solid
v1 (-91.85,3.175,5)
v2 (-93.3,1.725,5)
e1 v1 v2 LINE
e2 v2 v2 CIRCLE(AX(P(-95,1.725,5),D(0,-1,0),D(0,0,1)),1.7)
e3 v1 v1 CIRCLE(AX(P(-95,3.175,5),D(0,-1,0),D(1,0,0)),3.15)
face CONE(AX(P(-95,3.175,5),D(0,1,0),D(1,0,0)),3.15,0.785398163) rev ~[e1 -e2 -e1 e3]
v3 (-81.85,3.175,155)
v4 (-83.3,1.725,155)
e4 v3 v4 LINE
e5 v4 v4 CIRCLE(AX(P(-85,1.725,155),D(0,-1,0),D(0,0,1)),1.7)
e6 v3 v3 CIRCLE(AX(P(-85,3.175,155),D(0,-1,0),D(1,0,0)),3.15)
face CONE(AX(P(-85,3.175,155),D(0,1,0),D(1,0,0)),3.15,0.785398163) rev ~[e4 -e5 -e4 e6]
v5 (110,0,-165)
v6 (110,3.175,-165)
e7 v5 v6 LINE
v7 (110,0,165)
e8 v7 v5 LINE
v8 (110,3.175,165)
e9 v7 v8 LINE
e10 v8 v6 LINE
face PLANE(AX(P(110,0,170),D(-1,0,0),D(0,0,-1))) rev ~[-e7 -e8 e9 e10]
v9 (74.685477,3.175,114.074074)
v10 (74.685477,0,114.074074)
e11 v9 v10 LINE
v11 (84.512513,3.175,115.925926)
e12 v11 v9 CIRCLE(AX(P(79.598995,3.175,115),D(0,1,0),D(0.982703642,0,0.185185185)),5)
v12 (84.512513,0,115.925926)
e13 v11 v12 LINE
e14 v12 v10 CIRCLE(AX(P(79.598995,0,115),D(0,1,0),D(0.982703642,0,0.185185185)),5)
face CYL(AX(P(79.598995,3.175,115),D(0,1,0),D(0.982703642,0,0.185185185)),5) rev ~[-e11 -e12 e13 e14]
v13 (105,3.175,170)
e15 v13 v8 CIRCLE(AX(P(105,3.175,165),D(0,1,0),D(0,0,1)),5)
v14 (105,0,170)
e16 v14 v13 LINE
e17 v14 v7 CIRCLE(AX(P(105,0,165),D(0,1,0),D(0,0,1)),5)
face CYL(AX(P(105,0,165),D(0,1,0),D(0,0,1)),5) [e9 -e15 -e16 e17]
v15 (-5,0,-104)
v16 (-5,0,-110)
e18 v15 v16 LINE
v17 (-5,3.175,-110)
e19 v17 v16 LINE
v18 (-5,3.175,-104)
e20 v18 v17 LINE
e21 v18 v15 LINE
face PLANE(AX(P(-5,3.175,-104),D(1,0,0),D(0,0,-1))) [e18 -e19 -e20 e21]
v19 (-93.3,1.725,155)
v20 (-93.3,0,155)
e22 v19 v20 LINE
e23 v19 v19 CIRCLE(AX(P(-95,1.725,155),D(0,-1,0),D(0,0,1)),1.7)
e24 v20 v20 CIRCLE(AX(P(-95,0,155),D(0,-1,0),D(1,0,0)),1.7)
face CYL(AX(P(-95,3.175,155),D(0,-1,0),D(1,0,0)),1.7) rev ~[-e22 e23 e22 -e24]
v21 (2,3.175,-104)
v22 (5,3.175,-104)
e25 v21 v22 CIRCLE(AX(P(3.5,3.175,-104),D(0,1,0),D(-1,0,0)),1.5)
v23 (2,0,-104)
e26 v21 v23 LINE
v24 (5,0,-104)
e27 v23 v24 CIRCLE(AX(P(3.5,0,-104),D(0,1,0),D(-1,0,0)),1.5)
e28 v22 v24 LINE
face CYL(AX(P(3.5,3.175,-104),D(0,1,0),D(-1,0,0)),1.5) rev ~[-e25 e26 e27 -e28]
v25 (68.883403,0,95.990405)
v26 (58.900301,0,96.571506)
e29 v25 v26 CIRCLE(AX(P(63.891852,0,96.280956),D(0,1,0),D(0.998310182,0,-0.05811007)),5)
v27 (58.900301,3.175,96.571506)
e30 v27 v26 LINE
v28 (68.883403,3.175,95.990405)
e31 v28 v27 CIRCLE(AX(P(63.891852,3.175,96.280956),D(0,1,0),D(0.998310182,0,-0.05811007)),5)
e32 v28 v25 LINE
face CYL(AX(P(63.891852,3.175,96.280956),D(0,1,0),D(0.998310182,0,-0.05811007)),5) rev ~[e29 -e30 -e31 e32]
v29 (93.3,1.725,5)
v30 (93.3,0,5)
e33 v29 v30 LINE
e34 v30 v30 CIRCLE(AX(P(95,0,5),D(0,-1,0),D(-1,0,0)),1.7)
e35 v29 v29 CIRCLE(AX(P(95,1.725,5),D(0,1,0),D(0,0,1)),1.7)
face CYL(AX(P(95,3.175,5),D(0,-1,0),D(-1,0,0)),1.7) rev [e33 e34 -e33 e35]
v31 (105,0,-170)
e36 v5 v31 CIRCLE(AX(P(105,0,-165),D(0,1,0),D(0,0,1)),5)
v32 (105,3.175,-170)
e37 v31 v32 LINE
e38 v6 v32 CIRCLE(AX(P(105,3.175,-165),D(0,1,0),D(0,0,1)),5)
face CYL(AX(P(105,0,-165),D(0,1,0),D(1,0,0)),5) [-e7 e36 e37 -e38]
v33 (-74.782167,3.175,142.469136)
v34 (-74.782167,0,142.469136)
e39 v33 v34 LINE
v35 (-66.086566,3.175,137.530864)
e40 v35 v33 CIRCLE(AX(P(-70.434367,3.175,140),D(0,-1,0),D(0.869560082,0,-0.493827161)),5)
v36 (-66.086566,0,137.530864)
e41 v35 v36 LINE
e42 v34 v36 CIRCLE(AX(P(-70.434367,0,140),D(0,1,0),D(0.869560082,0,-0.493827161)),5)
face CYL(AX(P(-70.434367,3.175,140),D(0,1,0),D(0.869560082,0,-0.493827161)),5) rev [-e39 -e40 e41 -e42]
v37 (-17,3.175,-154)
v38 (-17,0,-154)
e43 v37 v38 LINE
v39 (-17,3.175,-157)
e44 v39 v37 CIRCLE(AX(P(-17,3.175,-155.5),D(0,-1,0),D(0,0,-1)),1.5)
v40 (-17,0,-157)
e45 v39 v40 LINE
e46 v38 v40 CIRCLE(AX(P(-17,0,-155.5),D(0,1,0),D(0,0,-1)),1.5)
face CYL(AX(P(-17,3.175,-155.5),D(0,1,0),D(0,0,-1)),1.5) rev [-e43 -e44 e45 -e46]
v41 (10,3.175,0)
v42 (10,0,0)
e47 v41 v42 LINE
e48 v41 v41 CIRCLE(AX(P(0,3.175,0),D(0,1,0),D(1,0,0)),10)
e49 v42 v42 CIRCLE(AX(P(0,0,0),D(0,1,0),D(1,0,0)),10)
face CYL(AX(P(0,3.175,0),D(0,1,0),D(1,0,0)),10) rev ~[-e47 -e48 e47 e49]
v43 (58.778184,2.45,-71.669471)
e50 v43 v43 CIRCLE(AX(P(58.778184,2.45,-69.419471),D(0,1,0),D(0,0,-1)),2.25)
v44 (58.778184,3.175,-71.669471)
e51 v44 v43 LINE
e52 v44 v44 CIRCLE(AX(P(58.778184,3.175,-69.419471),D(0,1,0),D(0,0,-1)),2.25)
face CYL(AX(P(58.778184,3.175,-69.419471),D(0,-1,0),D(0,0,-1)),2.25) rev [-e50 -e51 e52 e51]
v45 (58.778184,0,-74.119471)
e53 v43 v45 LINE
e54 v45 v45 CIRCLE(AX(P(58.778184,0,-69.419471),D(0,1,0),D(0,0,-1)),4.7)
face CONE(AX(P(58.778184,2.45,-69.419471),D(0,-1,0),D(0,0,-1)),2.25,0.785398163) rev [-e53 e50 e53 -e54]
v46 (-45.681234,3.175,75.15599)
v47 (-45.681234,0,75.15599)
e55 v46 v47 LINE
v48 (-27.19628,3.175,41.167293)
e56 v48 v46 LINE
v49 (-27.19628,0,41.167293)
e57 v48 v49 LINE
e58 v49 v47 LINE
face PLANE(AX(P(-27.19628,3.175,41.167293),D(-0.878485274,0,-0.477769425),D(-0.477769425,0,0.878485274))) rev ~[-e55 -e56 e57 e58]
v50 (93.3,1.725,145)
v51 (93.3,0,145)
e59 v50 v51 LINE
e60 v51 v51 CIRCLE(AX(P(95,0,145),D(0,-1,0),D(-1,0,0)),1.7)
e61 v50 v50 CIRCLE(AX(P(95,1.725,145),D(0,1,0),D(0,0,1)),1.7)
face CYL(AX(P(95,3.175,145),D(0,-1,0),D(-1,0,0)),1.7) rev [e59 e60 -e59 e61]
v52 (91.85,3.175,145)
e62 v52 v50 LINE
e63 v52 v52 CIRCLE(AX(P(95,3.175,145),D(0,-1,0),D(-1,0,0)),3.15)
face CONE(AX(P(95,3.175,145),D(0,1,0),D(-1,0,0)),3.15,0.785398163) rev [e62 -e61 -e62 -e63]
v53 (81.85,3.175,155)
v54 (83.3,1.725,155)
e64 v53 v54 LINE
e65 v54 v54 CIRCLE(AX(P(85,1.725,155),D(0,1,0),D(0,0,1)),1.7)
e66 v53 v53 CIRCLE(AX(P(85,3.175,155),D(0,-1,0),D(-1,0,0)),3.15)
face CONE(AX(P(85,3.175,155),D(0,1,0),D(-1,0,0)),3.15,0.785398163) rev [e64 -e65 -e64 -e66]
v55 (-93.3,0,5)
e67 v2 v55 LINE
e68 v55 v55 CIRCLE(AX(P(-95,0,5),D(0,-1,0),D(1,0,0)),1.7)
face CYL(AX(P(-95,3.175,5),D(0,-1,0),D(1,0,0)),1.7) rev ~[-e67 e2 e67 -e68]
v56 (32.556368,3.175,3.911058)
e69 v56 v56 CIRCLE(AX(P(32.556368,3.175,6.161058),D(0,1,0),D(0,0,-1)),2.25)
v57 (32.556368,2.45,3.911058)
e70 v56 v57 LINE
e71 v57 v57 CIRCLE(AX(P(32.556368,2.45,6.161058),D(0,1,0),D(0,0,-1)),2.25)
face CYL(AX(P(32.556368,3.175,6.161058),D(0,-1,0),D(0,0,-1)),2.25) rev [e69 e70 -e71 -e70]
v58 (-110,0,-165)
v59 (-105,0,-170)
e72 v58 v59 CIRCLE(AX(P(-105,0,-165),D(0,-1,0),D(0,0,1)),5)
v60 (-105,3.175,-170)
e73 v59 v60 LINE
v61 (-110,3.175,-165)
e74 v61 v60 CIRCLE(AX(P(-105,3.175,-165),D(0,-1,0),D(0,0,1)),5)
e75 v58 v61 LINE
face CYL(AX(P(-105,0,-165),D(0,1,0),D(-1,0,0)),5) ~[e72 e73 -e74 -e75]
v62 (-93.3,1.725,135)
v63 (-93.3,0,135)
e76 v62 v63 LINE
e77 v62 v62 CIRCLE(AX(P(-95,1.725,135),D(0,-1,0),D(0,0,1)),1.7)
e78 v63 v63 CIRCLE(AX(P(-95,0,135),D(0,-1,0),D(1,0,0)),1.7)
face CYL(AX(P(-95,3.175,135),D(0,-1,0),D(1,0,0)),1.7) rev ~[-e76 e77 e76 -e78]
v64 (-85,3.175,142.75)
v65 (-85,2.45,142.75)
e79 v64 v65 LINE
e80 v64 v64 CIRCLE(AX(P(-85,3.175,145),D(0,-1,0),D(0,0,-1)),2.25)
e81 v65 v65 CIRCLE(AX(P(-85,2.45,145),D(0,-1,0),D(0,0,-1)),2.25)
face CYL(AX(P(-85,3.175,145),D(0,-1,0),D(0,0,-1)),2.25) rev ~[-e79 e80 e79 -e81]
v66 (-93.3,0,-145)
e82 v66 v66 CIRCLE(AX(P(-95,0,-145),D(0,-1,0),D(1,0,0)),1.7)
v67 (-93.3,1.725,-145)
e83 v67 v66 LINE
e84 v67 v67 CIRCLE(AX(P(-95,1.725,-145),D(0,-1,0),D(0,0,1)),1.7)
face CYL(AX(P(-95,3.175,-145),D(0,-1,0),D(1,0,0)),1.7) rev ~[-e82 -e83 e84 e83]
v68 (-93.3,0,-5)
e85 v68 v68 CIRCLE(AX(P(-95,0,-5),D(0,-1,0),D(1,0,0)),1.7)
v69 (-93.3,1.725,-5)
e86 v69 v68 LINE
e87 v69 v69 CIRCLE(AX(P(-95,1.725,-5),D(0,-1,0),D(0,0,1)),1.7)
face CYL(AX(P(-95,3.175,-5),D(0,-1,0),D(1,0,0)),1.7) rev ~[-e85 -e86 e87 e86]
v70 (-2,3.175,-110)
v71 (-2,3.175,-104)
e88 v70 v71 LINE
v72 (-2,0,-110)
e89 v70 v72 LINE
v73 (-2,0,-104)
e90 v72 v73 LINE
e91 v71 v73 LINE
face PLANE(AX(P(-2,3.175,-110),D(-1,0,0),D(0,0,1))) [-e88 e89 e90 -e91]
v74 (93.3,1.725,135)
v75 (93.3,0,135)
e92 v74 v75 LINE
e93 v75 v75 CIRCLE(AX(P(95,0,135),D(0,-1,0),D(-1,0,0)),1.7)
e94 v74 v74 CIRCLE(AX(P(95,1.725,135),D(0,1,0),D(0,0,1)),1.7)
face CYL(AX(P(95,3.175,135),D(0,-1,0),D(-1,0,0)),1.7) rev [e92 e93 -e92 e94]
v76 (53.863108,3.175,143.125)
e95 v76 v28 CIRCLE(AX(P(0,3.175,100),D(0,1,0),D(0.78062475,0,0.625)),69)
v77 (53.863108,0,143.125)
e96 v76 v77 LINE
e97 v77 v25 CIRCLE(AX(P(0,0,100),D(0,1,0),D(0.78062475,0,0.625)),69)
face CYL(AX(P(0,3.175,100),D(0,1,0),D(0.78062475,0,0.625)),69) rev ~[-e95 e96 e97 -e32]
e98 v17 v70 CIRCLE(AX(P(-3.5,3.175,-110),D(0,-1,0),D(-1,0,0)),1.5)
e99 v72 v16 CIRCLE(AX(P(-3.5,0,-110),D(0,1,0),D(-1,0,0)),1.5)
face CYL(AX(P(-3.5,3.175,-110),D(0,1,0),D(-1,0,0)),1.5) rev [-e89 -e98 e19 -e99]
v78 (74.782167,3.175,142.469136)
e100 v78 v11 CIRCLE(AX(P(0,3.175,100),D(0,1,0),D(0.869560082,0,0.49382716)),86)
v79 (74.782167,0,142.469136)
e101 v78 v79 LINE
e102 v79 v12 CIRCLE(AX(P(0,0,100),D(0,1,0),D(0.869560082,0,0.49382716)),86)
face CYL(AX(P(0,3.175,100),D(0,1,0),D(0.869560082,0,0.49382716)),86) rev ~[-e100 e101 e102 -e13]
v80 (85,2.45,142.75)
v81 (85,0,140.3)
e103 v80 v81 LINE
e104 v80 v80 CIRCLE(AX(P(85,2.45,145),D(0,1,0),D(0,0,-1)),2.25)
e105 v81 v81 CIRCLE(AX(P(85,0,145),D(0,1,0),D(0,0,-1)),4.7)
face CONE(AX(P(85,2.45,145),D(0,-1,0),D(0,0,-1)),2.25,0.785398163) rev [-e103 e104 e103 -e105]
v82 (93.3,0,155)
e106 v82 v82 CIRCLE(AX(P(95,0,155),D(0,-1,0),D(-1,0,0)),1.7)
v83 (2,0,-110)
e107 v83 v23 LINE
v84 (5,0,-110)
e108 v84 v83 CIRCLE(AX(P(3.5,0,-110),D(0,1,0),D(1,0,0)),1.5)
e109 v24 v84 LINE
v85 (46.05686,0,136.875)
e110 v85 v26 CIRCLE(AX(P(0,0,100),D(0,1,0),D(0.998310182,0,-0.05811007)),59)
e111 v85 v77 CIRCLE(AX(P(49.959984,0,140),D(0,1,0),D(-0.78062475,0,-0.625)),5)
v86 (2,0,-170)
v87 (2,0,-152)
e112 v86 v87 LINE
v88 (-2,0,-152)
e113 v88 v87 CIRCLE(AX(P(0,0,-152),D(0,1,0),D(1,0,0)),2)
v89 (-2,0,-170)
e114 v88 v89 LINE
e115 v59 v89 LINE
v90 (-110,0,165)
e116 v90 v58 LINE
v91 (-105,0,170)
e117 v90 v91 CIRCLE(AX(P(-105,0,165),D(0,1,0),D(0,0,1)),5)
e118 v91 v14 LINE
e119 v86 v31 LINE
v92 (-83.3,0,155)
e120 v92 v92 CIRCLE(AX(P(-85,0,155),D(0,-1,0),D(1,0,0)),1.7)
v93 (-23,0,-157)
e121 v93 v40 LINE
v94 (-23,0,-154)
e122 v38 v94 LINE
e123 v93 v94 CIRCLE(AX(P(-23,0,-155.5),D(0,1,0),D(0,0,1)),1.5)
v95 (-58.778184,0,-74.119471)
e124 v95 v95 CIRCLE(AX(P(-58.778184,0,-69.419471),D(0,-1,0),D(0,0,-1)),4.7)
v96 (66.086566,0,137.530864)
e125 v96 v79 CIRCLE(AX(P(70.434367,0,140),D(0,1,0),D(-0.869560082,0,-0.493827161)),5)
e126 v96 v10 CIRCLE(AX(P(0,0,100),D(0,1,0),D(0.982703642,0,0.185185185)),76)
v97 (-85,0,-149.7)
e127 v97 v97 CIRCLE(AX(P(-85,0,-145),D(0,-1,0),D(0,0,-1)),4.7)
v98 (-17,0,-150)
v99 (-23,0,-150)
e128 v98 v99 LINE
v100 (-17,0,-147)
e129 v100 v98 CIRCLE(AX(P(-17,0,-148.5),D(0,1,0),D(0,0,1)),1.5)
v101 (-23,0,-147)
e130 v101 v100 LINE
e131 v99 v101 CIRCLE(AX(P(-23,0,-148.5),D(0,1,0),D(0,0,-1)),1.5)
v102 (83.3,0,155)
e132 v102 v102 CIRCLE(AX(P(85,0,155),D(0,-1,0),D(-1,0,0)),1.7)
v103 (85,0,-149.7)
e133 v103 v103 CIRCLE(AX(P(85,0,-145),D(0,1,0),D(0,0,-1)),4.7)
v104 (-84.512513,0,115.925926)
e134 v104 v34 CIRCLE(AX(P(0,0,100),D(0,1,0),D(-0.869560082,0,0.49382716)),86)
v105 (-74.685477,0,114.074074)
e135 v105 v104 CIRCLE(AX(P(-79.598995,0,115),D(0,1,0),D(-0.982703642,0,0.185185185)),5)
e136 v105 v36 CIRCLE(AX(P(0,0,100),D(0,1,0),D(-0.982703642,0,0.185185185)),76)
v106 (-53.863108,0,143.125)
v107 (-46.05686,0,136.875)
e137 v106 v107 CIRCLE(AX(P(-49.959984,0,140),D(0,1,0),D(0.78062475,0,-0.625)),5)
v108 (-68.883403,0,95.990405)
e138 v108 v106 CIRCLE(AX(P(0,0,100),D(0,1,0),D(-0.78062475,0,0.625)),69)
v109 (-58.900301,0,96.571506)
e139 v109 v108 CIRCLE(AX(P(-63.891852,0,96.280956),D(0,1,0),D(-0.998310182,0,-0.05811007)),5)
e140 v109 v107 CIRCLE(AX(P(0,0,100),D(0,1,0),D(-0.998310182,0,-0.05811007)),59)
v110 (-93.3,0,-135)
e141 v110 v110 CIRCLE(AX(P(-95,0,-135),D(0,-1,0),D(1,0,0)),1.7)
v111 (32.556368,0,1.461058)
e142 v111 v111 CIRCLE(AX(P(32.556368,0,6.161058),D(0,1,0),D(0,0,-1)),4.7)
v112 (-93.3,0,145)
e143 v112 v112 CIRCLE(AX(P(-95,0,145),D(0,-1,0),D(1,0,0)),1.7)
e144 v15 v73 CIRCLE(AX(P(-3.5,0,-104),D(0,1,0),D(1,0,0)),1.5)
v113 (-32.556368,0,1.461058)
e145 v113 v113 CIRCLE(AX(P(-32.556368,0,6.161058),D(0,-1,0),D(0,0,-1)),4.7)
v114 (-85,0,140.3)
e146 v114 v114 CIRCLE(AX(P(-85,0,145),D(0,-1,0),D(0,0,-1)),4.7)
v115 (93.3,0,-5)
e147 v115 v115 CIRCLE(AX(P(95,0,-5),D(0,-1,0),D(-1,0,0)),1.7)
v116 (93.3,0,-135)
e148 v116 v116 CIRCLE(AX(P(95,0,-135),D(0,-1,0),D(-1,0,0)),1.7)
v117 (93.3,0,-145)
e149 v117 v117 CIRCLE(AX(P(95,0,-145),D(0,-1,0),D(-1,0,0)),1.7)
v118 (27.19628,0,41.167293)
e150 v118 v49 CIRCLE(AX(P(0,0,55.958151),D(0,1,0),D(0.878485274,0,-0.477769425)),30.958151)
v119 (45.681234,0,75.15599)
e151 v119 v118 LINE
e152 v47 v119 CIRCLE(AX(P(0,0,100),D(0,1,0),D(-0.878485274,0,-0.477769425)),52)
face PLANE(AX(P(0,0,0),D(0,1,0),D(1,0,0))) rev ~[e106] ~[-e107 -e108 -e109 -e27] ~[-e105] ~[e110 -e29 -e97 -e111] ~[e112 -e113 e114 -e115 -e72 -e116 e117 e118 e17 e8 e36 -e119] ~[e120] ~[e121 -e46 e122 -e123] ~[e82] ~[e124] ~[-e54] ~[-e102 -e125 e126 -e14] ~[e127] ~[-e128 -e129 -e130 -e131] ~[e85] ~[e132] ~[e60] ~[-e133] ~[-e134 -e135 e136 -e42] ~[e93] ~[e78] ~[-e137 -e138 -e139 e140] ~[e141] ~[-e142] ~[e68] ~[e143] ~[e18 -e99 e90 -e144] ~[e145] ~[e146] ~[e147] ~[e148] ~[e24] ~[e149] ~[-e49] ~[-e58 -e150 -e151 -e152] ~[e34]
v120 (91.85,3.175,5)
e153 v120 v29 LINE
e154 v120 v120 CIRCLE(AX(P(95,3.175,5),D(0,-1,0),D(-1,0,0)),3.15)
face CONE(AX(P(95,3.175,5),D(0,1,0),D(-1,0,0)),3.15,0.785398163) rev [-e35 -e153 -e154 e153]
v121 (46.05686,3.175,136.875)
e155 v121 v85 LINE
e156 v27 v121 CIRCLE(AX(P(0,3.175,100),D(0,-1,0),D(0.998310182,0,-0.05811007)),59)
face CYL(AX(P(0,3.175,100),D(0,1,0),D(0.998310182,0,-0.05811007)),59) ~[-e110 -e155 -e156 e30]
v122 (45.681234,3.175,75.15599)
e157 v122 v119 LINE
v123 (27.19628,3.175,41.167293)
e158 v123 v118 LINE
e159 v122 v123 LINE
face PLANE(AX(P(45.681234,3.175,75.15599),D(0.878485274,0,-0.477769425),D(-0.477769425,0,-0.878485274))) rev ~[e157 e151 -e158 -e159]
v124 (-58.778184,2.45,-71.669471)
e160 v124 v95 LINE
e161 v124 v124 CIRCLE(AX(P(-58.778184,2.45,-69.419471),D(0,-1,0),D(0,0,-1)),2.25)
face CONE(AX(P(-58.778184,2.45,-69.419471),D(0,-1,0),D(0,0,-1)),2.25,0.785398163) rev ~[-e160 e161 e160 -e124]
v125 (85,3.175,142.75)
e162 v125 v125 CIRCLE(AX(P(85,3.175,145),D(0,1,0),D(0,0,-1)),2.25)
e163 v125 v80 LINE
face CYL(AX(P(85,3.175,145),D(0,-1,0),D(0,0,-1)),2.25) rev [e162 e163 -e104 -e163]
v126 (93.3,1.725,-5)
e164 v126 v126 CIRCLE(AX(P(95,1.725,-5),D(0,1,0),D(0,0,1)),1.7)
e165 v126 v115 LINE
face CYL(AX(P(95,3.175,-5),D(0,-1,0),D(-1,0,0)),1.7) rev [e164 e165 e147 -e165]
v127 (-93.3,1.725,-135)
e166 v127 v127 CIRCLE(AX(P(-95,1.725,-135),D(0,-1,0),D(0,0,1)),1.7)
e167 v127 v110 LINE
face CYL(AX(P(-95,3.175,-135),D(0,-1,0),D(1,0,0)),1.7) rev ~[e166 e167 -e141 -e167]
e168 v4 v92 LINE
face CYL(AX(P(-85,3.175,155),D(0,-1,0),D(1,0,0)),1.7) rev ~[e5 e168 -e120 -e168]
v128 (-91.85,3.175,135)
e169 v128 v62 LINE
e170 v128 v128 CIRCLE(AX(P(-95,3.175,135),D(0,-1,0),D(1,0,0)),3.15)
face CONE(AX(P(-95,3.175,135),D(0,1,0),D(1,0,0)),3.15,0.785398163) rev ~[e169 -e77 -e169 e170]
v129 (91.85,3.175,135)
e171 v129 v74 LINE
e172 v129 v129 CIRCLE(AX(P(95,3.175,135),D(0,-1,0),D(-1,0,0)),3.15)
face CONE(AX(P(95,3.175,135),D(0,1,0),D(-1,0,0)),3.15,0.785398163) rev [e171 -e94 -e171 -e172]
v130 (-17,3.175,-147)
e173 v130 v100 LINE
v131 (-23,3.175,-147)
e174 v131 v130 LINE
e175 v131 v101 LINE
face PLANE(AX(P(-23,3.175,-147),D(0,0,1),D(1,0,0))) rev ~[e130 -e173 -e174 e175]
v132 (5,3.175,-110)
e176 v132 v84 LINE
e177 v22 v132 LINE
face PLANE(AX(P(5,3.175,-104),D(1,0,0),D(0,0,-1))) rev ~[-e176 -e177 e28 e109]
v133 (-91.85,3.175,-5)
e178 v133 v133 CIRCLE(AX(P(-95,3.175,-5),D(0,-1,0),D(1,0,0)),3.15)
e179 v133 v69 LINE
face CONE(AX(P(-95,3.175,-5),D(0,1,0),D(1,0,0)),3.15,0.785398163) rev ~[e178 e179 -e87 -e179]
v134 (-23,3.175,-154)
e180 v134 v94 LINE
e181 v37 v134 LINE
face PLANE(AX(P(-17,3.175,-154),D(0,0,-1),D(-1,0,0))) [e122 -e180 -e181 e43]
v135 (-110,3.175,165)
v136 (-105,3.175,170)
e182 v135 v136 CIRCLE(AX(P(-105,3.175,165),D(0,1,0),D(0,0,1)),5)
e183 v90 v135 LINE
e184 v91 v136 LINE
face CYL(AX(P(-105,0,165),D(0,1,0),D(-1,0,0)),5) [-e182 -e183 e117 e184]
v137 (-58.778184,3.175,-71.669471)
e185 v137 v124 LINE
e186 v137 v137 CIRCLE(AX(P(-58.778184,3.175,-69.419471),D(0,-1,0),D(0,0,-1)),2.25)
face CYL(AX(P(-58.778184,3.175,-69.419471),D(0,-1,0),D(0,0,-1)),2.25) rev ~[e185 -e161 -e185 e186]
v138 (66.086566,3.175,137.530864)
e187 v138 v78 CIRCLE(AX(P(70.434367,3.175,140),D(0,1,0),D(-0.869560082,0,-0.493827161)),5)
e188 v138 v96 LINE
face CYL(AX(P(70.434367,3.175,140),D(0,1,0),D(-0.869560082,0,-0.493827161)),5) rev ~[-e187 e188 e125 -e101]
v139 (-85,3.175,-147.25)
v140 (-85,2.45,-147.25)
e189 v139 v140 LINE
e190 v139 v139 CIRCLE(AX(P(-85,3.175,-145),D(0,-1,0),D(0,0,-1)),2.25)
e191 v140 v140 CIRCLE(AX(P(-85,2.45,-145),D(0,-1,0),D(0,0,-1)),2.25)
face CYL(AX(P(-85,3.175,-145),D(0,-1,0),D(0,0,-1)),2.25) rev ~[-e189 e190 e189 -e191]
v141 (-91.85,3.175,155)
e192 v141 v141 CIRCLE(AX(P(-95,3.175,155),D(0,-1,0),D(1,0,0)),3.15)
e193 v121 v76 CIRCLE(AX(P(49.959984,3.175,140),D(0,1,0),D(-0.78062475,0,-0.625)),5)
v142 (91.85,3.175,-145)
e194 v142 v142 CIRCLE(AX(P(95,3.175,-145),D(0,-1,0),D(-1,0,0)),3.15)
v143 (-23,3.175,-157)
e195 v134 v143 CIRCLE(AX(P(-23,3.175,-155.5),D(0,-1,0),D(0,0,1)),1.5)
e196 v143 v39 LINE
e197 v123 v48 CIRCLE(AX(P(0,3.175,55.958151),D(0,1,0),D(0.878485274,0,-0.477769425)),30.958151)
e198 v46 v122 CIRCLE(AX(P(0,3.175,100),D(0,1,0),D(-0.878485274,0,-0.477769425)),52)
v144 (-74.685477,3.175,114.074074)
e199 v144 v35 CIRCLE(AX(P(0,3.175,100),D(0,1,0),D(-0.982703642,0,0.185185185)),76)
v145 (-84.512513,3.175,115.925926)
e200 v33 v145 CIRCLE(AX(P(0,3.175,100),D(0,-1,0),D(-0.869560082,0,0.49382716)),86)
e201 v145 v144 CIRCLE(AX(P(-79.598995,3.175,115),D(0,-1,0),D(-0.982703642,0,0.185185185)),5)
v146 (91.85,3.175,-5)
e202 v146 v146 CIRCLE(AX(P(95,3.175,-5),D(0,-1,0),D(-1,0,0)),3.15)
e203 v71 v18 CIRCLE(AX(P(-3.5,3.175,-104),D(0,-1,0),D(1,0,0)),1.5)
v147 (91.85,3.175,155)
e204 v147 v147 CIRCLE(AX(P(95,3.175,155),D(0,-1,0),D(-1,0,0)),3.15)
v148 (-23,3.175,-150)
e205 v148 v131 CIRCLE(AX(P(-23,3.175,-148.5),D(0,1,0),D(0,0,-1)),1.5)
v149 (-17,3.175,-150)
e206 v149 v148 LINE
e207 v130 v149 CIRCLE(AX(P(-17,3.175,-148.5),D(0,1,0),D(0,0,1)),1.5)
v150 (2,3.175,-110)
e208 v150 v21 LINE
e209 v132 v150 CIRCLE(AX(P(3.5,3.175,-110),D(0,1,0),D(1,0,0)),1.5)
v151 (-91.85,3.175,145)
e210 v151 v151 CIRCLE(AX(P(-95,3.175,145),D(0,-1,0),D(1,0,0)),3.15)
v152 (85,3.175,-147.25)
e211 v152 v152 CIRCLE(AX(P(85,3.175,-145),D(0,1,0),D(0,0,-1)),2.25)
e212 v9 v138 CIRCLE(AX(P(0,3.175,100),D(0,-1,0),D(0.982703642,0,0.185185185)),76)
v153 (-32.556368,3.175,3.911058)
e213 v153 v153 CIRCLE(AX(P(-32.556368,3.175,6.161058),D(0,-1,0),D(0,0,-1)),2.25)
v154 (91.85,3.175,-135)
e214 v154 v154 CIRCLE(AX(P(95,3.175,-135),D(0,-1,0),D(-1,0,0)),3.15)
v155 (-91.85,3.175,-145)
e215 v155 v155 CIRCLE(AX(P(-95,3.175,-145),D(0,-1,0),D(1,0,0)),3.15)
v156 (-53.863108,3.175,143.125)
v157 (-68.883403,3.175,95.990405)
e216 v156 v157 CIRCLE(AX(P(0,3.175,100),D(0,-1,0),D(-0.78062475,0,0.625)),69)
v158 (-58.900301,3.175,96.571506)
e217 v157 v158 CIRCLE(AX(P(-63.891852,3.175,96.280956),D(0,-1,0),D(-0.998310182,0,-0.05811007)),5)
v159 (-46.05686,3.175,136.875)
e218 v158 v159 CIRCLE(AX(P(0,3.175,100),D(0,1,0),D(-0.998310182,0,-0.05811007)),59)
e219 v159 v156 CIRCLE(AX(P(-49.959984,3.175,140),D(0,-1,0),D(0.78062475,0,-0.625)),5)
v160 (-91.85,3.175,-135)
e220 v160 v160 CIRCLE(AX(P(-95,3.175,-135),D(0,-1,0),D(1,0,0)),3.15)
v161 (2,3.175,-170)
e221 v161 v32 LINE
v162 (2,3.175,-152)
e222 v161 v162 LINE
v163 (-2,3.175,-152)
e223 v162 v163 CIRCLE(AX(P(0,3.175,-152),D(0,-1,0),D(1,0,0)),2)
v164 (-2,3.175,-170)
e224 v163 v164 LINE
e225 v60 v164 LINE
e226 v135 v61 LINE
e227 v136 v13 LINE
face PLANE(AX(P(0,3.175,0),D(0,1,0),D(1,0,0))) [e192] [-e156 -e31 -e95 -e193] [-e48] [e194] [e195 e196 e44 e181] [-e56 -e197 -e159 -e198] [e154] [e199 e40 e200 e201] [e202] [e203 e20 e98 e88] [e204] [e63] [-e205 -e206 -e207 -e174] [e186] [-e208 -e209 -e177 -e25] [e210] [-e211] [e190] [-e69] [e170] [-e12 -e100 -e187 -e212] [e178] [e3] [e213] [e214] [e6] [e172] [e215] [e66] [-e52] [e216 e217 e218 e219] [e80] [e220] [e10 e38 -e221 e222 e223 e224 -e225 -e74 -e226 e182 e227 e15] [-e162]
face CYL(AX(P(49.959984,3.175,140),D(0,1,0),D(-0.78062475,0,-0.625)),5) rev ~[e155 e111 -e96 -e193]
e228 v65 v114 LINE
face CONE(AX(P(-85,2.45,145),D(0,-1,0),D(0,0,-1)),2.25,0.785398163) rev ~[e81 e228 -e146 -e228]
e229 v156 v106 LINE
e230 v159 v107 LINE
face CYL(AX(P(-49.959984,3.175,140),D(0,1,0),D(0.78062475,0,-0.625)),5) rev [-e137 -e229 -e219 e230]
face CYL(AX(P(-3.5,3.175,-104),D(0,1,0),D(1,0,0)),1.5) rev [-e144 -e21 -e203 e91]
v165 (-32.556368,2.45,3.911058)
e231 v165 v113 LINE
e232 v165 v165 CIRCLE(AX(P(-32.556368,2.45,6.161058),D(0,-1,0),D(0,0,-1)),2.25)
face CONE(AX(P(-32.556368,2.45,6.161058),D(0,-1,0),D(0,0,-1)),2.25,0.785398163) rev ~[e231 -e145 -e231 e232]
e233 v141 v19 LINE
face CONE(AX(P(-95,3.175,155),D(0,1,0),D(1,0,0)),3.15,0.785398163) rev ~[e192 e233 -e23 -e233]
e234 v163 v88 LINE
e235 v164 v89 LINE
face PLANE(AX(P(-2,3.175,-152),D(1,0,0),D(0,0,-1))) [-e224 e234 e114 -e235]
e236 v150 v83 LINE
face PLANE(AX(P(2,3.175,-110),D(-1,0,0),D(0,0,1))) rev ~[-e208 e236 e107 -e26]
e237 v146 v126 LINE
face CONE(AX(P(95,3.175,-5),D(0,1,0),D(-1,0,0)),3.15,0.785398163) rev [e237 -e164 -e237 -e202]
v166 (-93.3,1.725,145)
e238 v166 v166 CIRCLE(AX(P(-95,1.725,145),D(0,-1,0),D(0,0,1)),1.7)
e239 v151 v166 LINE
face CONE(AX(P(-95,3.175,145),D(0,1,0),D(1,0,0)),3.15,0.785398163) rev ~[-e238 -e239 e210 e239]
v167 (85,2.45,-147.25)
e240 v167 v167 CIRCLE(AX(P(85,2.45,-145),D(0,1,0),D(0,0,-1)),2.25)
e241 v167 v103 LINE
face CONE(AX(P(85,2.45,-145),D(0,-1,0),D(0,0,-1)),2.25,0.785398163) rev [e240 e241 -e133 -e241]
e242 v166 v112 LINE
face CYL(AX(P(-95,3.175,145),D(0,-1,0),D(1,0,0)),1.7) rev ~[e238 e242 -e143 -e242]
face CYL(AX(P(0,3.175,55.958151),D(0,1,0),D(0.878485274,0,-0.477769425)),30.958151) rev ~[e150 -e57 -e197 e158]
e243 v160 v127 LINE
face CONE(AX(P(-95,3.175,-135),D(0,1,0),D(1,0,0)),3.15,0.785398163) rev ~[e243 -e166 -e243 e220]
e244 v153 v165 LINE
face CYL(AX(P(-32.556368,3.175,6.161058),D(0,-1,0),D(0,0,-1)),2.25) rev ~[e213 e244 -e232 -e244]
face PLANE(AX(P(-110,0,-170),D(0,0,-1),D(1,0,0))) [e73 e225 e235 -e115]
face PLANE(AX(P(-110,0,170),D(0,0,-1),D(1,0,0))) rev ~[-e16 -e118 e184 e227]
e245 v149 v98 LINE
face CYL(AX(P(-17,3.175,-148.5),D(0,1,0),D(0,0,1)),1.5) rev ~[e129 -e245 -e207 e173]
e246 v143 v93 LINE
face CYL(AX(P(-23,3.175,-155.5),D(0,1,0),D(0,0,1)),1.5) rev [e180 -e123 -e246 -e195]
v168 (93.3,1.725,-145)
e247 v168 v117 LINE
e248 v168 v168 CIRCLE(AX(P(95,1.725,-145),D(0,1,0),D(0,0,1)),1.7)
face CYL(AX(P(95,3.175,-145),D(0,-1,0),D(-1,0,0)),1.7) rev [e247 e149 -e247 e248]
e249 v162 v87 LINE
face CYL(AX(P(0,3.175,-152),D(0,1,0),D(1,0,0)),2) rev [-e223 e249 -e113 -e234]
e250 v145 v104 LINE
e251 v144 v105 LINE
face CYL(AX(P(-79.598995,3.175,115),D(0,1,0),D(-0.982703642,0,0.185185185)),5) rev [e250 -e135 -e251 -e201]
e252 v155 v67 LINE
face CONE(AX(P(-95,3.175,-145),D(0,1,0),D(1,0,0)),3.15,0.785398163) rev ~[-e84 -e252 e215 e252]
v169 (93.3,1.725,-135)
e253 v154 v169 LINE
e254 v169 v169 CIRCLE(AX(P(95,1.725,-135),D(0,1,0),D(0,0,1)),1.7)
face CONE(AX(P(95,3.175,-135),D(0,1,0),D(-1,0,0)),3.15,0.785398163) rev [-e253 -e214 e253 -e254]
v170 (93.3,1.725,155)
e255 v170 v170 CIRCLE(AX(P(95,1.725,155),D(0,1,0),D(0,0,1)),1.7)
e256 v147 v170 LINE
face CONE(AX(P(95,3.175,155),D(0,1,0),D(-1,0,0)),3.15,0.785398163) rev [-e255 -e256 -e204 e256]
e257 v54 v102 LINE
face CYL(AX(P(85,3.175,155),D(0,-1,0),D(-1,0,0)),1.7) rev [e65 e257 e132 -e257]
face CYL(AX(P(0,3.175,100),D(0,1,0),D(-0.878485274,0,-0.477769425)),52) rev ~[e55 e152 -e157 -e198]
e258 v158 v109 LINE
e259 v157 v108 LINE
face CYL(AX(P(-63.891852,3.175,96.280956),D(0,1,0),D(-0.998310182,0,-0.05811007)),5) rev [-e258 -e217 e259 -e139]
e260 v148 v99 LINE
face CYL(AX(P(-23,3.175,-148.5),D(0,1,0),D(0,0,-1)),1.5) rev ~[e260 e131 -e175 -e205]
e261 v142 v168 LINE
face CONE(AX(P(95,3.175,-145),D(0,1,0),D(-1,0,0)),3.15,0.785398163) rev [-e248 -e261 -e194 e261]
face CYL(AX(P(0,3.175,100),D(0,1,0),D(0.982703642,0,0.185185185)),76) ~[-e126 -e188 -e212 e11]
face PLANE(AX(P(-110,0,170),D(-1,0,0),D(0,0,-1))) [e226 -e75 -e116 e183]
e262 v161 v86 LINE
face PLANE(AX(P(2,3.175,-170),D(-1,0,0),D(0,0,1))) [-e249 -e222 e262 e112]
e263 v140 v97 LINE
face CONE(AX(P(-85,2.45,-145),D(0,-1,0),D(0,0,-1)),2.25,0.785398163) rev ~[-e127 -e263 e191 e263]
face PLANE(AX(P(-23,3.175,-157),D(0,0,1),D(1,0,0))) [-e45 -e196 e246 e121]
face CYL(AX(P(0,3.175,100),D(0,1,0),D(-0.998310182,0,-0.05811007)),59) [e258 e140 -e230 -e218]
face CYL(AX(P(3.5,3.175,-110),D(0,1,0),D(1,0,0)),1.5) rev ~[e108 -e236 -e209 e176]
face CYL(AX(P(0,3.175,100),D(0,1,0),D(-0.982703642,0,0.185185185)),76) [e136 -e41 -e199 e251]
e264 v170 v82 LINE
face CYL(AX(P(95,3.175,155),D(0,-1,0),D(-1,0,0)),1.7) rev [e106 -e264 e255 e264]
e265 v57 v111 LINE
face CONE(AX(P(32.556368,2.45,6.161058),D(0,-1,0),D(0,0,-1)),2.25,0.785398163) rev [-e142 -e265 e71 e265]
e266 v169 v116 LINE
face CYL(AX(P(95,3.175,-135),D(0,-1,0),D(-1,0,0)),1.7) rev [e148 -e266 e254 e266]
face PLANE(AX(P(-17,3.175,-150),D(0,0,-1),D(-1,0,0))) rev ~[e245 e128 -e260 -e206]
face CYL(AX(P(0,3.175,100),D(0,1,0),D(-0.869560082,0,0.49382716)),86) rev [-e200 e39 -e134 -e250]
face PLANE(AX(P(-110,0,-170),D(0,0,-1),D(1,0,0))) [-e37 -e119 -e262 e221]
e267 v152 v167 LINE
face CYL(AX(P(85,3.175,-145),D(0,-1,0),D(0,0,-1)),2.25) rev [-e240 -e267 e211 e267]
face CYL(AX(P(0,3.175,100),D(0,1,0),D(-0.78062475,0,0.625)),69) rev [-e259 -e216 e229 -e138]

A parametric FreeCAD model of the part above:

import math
import FreeCAD as App
import Part
import Sketcher
Q = App.Units.Quantity


def edges_at(feature, points):
    """Names of the edges that pass closest to the given points."""
    edges = feature.Shape.Edges
    near = lambda p: min(range(len(edges)), key=lambda i: edges[i].distToShape(Part.Vertex(*p))[0])
    return sorted({f"Edge{near(p) + 1}" for p in points})


def add_polygon(sketch, points):
    """Adds a closed chain of lines whose ends are joined by coincident constraints."""
    first, n = sketch.GeometryCount, len(points)
    for a, b in zip(points, points[1:] + points[:1]):
        sketch.addGeometry(Part.LineSegment(App.Vector(*a, 0), App.Vector(*b, 0)), False)
    for i in range(n):
        sketch.addConstraint(Sketcher.Constraint("Coincident", first + i, 2, first + (i + 1) % n, 1))

doc = App.newDocument("Part")
body = doc.addObject("PartDesign::Body", "Body")

# Sketch on XZ plane
sketch1 = doc.addObject("Sketcher::SketchObject", "Sketch")
body.addObject(sketch1)
sketch1.AttachmentSupport = (doc.XZ_Plane, [""])
sketch1.MapMode = "FlatFace"
add_polygon(sketch1, [(-110, -170), (-110, 170), (110, 170), (110, -170)])  # lines 0-3
sketch1.addConstraint(Sketcher.Constraint("Vertical", 0))
sketch1.addConstraint(Sketcher.Constraint("Horizontal", 1))
sketch1.addConstraint(Sketcher.Constraint("Vertical", 2))
sketch1.addConstraint(Sketcher.Constraint("Horizontal", 3))
sketch1.addConstraint(Sketcher.Constraint("Symmetric", 0, 2, 2, 2, -1, 1))
sketch1.addConstraint(Sketcher.Constraint("DistanceX", 1, 1, 1, 2, 220.0))
sketch1.addConstraint(Sketcher.Constraint("DistanceY", 0, 1, 0, 2, 340.0))
pad1 = doc.addObject("PartDesign::Pad", "Pad")
body.addObject(pad1)
pad1.Profile = sketch1
pad1.Length = 3.175
pad1.Reversed = True
doc.recompute()

fillet = doc.addObject("PartDesign::Fillet", "Fillet")
body.addObject(fillet)
fillet.Base = (pad1, edges_at(pad1, [
    (-110, 1.587, -170),
    (110, 1.587, -170),
    (110, 1.587, 170),
    (-110, 1.587, 170),
]))
fillet.Radius = 5

# Sketch on XZ plane
sketch2 = doc.addObject("Sketcher::SketchObject", "Sketch001")
body.addObject(sketch2)
sketch2.AttachmentSupport = (doc.XZ_Plane, [""])
sketch2.MapMode = "FlatFace"
sketch2.AttachmentOffset = App.Placement(App.Vector(0, 0, -3.175), App.Rotation())
sketch2.addGeometry(Part.Circle(App.Vector(0, 0, 0), App.Vector(0, 0, 1), 10), False)
sketch2.addGeometry(Part.LineSegment(App.Vector(-27.2, 41.2, 0), App.Vector(-45.7, 75.2, 0)), False)
sketch2.addGeometry(Part.ArcOfCircle(Part.Circle(App.Vector(0, 100, 0), App.Vector(0, 0, 1), 52), math.radians(-29), math.radians(209)), False)
sketch2.addGeometry(Part.LineSegment(App.Vector(45.7, 75.2, 0), App.Vector(27.2, 41.2, 0)), False)
sketch2.addGeometry(Part.ArcOfCircle(Part.Circle(App.Vector(0, 56, 0), App.Vector(0, 0, 1), 31), math.radians(-151), math.radians(-29)), False)
sketch2.addGeometry(Part.LineSegment(App.Vector(2, -152, 0), App.Vector(2, -170, 0)), False)
sketch2.addGeometry(Part.ArcOfCircle(Part.Circle(App.Vector(0, -170, 0), App.Vector(0, 0, 1), 2), math.radians(180), math.radians(360)), False)
sketch2.addGeometry(Part.LineSegment(App.Vector(-2, -170, 0), App.Vector(-2, -152, 0)), False)
sketch2.addGeometry(Part.ArcOfCircle(Part.Circle(App.Vector(0, -152, 0), App.Vector(0, 0, 1), 2), math.radians(0), math.radians(180)), False)
sketch2.addGeometry(Part.LineSegment(App.Vector(-2, -104, 0), App.Vector(-2, -110, 0)), False)
sketch2.addGeometry(Part.ArcOfCircle(Part.Circle(App.Vector(-3.5, -110, 0), App.Vector(0, 0, 1), 1.5), math.radians(180), math.radians(360)), False)
sketch2.addGeometry(Part.LineSegment(App.Vector(-5, -110, 0), App.Vector(-5, -104, 0)), False)
sketch2.addGeometry(Part.ArcOfCircle(Part.Circle(App.Vector(-3.5, -104, 0), App.Vector(0, 0, 1), 1.5), math.radians(0), math.radians(180)), False)
sketch2.addGeometry(Part.LineSegment(App.Vector(2, -110, 0), App.Vector(2, -104, 0)), False)
sketch2.addGeometry(Part.ArcOfCircle(Part.Circle(App.Vector(3.5, -104, 0), App.Vector(0, 0, 1), 1.5), math.radians(0), math.radians(180)), False)
sketch2.addGeometry(Part.LineSegment(App.Vector(5, -104, 0), App.Vector(5, -110, 0)), False)
sketch2.addGeometry(Part.ArcOfCircle(Part.Circle(App.Vector(3.5, -110, 0), App.Vector(0, 0, 1), 1.5), math.radians(180), math.radians(360)), False)
sketch2.addGeometry(Part.LineSegment(App.Vector(-17, -157, 0), App.Vector(-23, -157, 0)), False)
sketch2.addGeometry(Part.ArcOfCircle(Part.Circle(App.Vector(-23, -155.5, 0), App.Vector(0, 0, 1), 1.5), math.radians(90), math.radians(270)), False)
sketch2.addGeometry(Part.LineSegment(App.Vector(-23, -154, 0), App.Vector(-17, -154, 0)), False)
sketch2.addGeometry(Part.ArcOfCircle(Part.Circle(App.Vector(-17, -155.5, 0), App.Vector(0, 0, 1), 1.5), math.radians(-90), math.radians(90)), False)
sketch2.addGeometry(Part.LineSegment(App.Vector(-23, -147, 0), App.Vector(-17, -147, 0)), False)
sketch2.addGeometry(Part.ArcOfCircle(Part.Circle(App.Vector(-17, -148.5, 0), App.Vector(0, 0, 1), 1.5), math.radians(-90), math.radians(90)), False)
sketch2.addGeometry(Part.LineSegment(App.Vector(-17, -150, 0), App.Vector(-23, -150, 0)), False)
sketch2.addGeometry(Part.ArcOfCircle(Part.Circle(App.Vector(-23, -148.5, 0), App.Vector(0, 0, 1), 1.5), math.radians(90), math.radians(270)), False)
sketch2.addConstraint(Sketcher.Constraint("Tangent", 1, 2, 2, 2))
sketch2.addConstraint(Sketcher.Constraint("Tangent", 2, 1, 3, 1))
sketch2.addConstraint(Sketcher.Constraint("Tangent", 3, 2, 4, 2))
sketch2.addConstraint(Sketcher.Constraint("Tangent", 4, 1, 1, 1))
sketch2.addConstraint(Sketcher.Constraint("Tangent", 5, 2, 6, 2))
sketch2.addConstraint(Sketcher.Constraint("Tangent", 6, 1, 7, 1))
sketch2.addConstraint(Sketcher.Constraint("Tangent", 7, 2, 8, 2))
sketch2.addConstraint(Sketcher.Constraint("Tangent", 8, 1, 5, 1))
sketch2.addConstraint(Sketcher.Constraint("Tangent", 9, 2, 10, 2))
sketch2.addConstraint(Sketcher.Constraint("Tangent", 10, 1, 11, 1))
sketch2.addConstraint(Sketcher.Constraint("Tangent", 11, 2, 12, 2))
sketch2.addConstraint(Sketcher.Constraint("Tangent", 12, 1, 9, 1))
sketch2.addConstraint(Sketcher.Constraint("Tangent", 13, 2, 14, 2))
sketch2.addConstraint(Sketcher.Constraint("Tangent", 14, 1, 15, 1))
sketch2.addConstraint(Sketcher.Constraint("Tangent", 15, 2, 16, 2))
sketch2.addConstraint(Sketcher.Constraint("Tangent", 16, 1, 13, 1))
sketch2.addConstraint(Sketcher.Constraint("Tangent", 17, 2, 18, 2))
sketch2.addConstraint(Sketcher.Constraint("Tangent", 18, 1, 19, 1))
sketch2.addConstraint(Sketcher.Constraint("Tangent", 19, 2, 20, 2))
sketch2.addConstraint(Sketcher.Constraint("Tangent", 20, 1, 17, 1))
sketch2.addConstraint(Sketcher.Constraint("Tangent", 21, 2, 22, 2))
sketch2.addConstraint(Sketcher.Constraint("Tangent", 22, 1, 23, 1))
sketch2.addConstraint(Sketcher.Constraint("Tangent", 23, 2, 24, 2))
sketch2.addConstraint(Sketcher.Constraint("Tangent", 24, 1, 21, 1))
sketch2.addConstraint(Sketcher.Constraint("Vertical", 5))
sketch2.addConstraint(Sketcher.Constraint("Vertical", 7))
sketch2.addConstraint(Sketcher.Constraint("Vertical", 9))
sketch2.addConstraint(Sketcher.Constraint("Vertical", 11))
sketch2.addConstraint(Sketcher.Constraint("Vertical", 13))
sketch2.addConstraint(Sketcher.Constraint("Vertical", 15))
sketch2.addConstraint(Sketcher.Constraint("Horizontal", 17))
sketch2.addConstraint(Sketcher.Constraint("Horizontal", 19))
sketch2.addConstraint(Sketcher.Constraint("Horizontal", 21))
sketch2.addConstraint(Sketcher.Constraint("Horizontal", 23))
sketch2.addConstraint(Sketcher.Constraint("Coincident", 0, 3, -1, 1))
sketch2.addConstraint(Sketcher.Constraint("Equal", 12, 14))
sketch2.addConstraint(Sketcher.Constraint("Equal", 16, 18))
sketch2.addConstraint(Sketcher.Constraint("Equal", 20, 22))
sketch2.addConstraint(Sketcher.Constraint("Symmetric", 12, 3, 14, 3, -2))
sketch2.addConstraint(Sketcher.Constraint("Symmetric", 1, 2, 2, 1, -2))
sketch2.addConstraint(Sketcher.Constraint("PointOnObject", 6, 3, -2))
sketch2.addConstraint(Sketcher.Constraint("Horizontal", 10, 3, 16, 3))
sketch2.addConstraint(Sketcher.Constraint("Vertical", 20, 3, 22, 3))
sketch2.addConstraint(Sketcher.Constraint("Vertical", 18, 3, 24, 3))
sketch2.addConstraint(Sketcher.Constraint("Vertical", 7, 2, 9, 2))
sketch2.addConstraint(Sketcher.Constraint("Equal", 23, 9))
sketch2.addConstraint(Sketcher.Constraint("Diameter", 0, 20.0))
sketch2.addConstraint(Sketcher.Constraint("Radius", 2, 52.0))
sketch2.addConstraint(Sketcher.Constraint("Radius", 6, 2.0))
sketch2.addConstraint(Sketcher.Constraint("Radius", 10, 1.5))
sketch2.addConstraint(Sketcher.Constraint("DistanceX", 17, 2, 17, 1, 6.0))
sketch2.addConstraint(Sketcher.Constraint("DistanceY", 5, 2, 5, 1, 18.0))
sketch2.addConstraint(Sketcher.Constraint("DistanceY", -1, 1, 2, 3, 100.0))
sketch2.addConstraint(Sketcher.Constraint("DistanceY", 6, 3, -1, 1, 170.0))
sketch2.addConstraint(Sketcher.Constraint("DistanceY", 10, 3, -1, 1, 110.0))
sketch2.addConstraint(Sketcher.Constraint("DistanceX", 18, 3, -1, 1, 23.0))
sketch2.addConstraint(Sketcher.Constraint("DistanceY", 17, 2, -1, 1, 157.0))
sketch2.addConstraint(Sketcher.Constraint("DistanceY", 21, 2, -1, 1, 147.0))
sketch2.addConstraint(Sketcher.Constraint("Radius", 4, 30.958151))
sketch2.addConstraint(Sketcher.Constraint("DistanceY", -1, 1, 4, 3, 55.958151))
pocket1 = doc.addObject("PartDesign::Pocket", "Pocket")
body.addObject(pocket1)
pocket1.Profile = sketch2
pocket1.Type = "ThroughAll"
pocket1.Reversed = True

# Sketch on XZ plane
sketch3 = doc.addObject("Sketcher::SketchObject", "Sketch002")
body.addObject(sketch3)
sketch3.AttachmentSupport = (doc.XZ_Plane, [""])
sketch3.MapMode = "FlatFace"
sketch3.AttachmentOffset = App.Placement(App.Vector(0, 0, -3.175), App.Rotation())
sketch3.addGeometry(Part.Circle(App.Vector(-85, 155, 0), App.Vector(0, 0, 1), 1.7), False)
sketch3.addGeometry(Part.Circle(App.Vector(-95, 155, 0), App.Vector(0, 0, 1), 1.7), False)
sketch3.addGeometry(Part.Circle(App.Vector(-95, 145, 0), App.Vector(0, 0, 1), 1.7), False)
sketch3.addGeometry(Part.Circle(App.Vector(-95, 135, 0), App.Vector(0, 0, 1), 1.7), False)
sketch3.addGeometry(Part.Circle(App.Vector(-95, 5, 0), App.Vector(0, 0, 1), 1.7), False)
sketch3.addGeometry(Part.Circle(App.Vector(-95, -5, 0), App.Vector(0, 0, 1), 1.7), False)
sketch3.addGeometry(Part.Circle(App.Vector(-95, -135, 0), App.Vector(0, 0, 1), 1.7), False)
sketch3.addGeometry(Part.Circle(App.Vector(-95, -145, 0), App.Vector(0, 0, 1), 1.7), False)
sketch3.addConstraint(Sketcher.Constraint("Equal", 0, 1))
sketch3.addConstraint(Sketcher.Constraint("Equal", 1, 2))
sketch3.addConstraint(Sketcher.Constraint("Equal", 2, 3))
sketch3.addConstraint(Sketcher.Constraint("Equal", 3, 4))
sketch3.addConstraint(Sketcher.Constraint("Equal", 4, 5))
sketch3.addConstraint(Sketcher.Constraint("Equal", 5, 6))
sketch3.addConstraint(Sketcher.Constraint("Equal", 6, 7))
sketch3.addConstraint(Sketcher.Constraint("Symmetric", 4, 3, 5, 3, -1))
sketch3.addConstraint(Sketcher.Constraint("Symmetric", 3, 3, 6, 3, -1))
sketch3.addConstraint(Sketcher.Constraint("Symmetric", 2, 3, 7, 3, -1))
sketch3.addConstraint(Sketcher.Constraint("Horizontal", 0, 3, 1, 3))
sketch3.addConstraint(Sketcher.Constraint("Vertical", 1, 3, 2, 3))
sketch3.addConstraint(Sketcher.Constraint("Vertical", 2, 3, 3, 3))
sketch3.addConstraint(Sketcher.Constraint("Vertical", 3, 3, 4, 3))
sketch3.addConstraint(Sketcher.Constraint("Diameter", 0, 3.4))
sketch3.addConstraint(Sketcher.Constraint("DistanceX", 0, 3, -1, 1, 85.0))
sketch3.addConstraint(Sketcher.Constraint("DistanceY", -1, 1, 0, 3, 155.0))
sketch3.addConstraint(Sketcher.Constraint("DistanceX", 1, 3, -1, 1, 95.0))
sketch3.addConstraint(Sketcher.Constraint("DistanceY", -1, 1, 2, 3, 145.0))
sketch3.addConstraint(Sketcher.Constraint("DistanceY", -1, 1, 3, 3, 135.0))
sketch3.addConstraint(Sketcher.Constraint("DistanceY", -1, 1, 4, 3, 5.0))
doc.recompute()
hole = doc.addObject("PartDesign::Hole", "Hole")
body.addObject(hole)
hole.Profile = sketch3
hole.ThreadType = "None"
hole.Diameter = 3.4
hole.DepthType = "ThroughAll"
hole.HoleCutType = "Countersink"
hole.HoleCutDiameter = 6.3
hole.HoleCutCountersinkAngle = 90
hole.Reversed = True
doc.recompute()

mirrored = doc.addObject("PartDesign::Mirrored", "Mirrored")
body.addObject(mirrored)
mirrored.Originals = [hole]
mirrored.MirrorPlane = (doc.YZ_Plane, [""])
body.Tip = mirrored

# Sketch on YZ plane
sketch4 = doc.addObject("Sketcher::SketchObject", "Sketch003")
body.addObject(sketch4)
sketch4.AttachmentSupport = (doc.YZ_Plane, [""])
sketch4.MapMode = "FlatFace"
sketch4.AttachmentOffset = App.Placement(App.Vector(0, 0, 85), App.Rotation())
add_polygon(sketch4, [(3.2, 145), (0, 145), (0, 140.3), (2.5, 142.8), (3.2, 142.8)])  # lines 0-4
sketch4.addGeometry(Part.LineSegment(App.Vector(0, 145, 0), App.Vector(3.2, 145, 0)), True)  # axis
sketch4.addConstraint(Sketcher.Constraint("Horizontal", 0))
sketch4.addConstraint(Sketcher.Constraint("Vertical", 1))
sketch4.addConstraint(Sketcher.Constraint("Horizontal", 3))
sketch4.addConstraint(Sketcher.Constraint("Vertical", 4))
sketch4.addConstraint(Sketcher.Constraint("Horizontal", 5))
sketch4.addConstraint(Sketcher.Constraint("Coincident", 5, 1, 0, 2))
sketch4.addConstraint(Sketcher.Constraint("PointOnObject", 0, 2, -2))
sketch4.addConstraint(Sketcher.Constraint("Vertical", 3, 2, 5, 2))
sketch4.addConstraint(Sketcher.Constraint("Angle", 2, Q("45 deg")))
sketch4.addConstraint(Sketcher.Constraint("DistanceY", 1, 2, 1, 1, 4.7))
sketch4.addConstraint(Sketcher.Constraint("DistanceY", -1, 1, 0, 2, 145.0))
sketch4.addConstraint(Sketcher.Constraint("DistanceY", 4, 1, 4, 2, 2.25))
sketch4.addConstraint(Sketcher.Constraint("DistanceX", 0, 2, 0, 1, 3.175))
groove = doc.addObject("PartDesign::Groove", "Groove")
body.addObject(groove)
groove.Profile = sketch4
groove.ReferenceAxis = (sketch4, ["Axis0"])
groove.Angle = 360
doc.recompute()

linearpattern = doc.addObject("PartDesign::LinearPattern", "LinearPattern")
body.addObject(linearpattern)
linearpattern.Originals = [groove]
linearpattern.Direction = (doc.Z_Axis, [""])
linearpattern.Mode = "offset"
linearpattern.Offset = 290
linearpattern.Occurrences = 2
linearpattern.Reversed = True
body.Tip = linearpattern
doc.recompute()

datumline = doc.addObject("PartDesign::Line", "DatumLine")
body.addObject(datumline)
datumline.Placement = App.Placement(App.Vector(0, 0, 0), App.Rotation(App.Vector(0, 0, 1), App.Vector(-0.353361448, 0, -0.935486872)))
linearpattern2 = doc.addObject("PartDesign::LinearPattern", "LinearPattern001")
body.addObject(linearpattern2)
linearpattern2.Originals = [groove]
linearpattern2.Direction = (datumline, [""])
linearpattern2.Mode = "offset"
linearpattern2.Offset = 148.413566
linearpattern2.Occurrences = 2
body.Tip = linearpattern2
doc.recompute()

datumline2 = doc.addObject("PartDesign::Line", "DatumLine001")
body.addObject(datumline2)
datumline2.Placement = App.Placement(App.Vector(0, 0, 0), App.Rotation(App.Vector(0, 0, 1), App.Vector(-0.12138781, 0, -0.992605158)))
linearpattern3 = doc.addObject("PartDesign::LinearPattern", "LinearPattern002")
body.addObject(linearpattern3)
linearpattern3.Originals = [groove]
linearpattern3.Direction = (datumline2, [""])
linearpattern3.Mode = "offset"
linearpattern3.Offset = 216.016882
linearpattern3.Occurrences = 2
body.Tip = linearpattern3
doc.recompute()

mirrored2 = doc.addObject("PartDesign::Mirrored", "Mirrored001")
body.addObject(mirrored2)
mirrored2.Originals = [groove]
mirrored2.MirrorPlane = (doc.YZ_Plane, [""])
body.Tip = mirrored2

# Sketch on YZ plane
sketch5 = doc.addObject("Sketcher::SketchObject", "Sketch004")
body.addObject(sketch5)
sketch5.AttachmentSupport = (doc.YZ_Plane, [""])
sketch5.MapMode = "FlatFace"
sketch5.AttachmentOffset = App.Placement(App.Vector(0, 0, -85), App.Rotation())
add_polygon(sketch5, [(0, -145), (3.2, -145), (3.2, -147.2), (2.5, -147.2), (0, -149.7)])  # lines 0-4
sketch5.addGeometry(Part.LineSegment(App.Vector(3.2, -145, 0), App.Vector(0, -145, 0)), True)  # axis
sketch5.addConstraint(Sketcher.Constraint("Horizontal", 0))
sketch5.addConstraint(Sketcher.Constraint("Vertical", 1))
sketch5.addConstraint(Sketcher.Constraint("Horizontal", 2))
sketch5.addConstraint(Sketcher.Constraint("Vertical", 4))
sketch5.addConstraint(Sketcher.Constraint("Horizontal", 5))
sketch5.addConstraint(Sketcher.Constraint("Coincident", 5, 1, 0, 2))
sketch5.addConstraint(Sketcher.Constraint("PointOnObject", 3, 2, -2))
sketch5.addConstraint(Sketcher.Constraint("PointOnObject", 5, 2, -2))
sketch5.addConstraint(Sketcher.Constraint("Angle", 3, Q("-135 deg")))
sketch5.addConstraint(Sketcher.Constraint("DistanceY", 4, 1, 4, 2, 4.7))
sketch5.addConstraint(Sketcher.Constraint("DistanceY", 0, 2, -1, 1, 145.0))
sketch5.addConstraint(Sketcher.Constraint("DistanceY", 1, 2, 1, 1, 2.25))
sketch5.addConstraint(Sketcher.Constraint("DistanceX", 0, 1, 0, 2, 3.175))
groove2 = doc.addObject("PartDesign::Groove", "Groove001")
body.addObject(groove2)
groove2.Profile = sketch5
groove2.ReferenceAxis = (sketch5, ["Axis0"])
groove2.Angle = 360

# Sketch on YZ plane
sketch6 = doc.addObject("Sketcher::SketchObject", "Sketch005")
body.addObject(sketch6)
sketch6.AttachmentSupport = (doc.YZ_Plane, [""])
sketch6.MapMode = "FlatFace"
sketch6.AttachmentOffset = App.Placement(App.Vector(0, 0, -32.556368), App.Rotation())
add_polygon(sketch6, [(0, 6.2), (3.2, 6.2), (3.2, 3.9), (2.5, 3.9), (0, 1.5)])  # lines 0-4
sketch6.addGeometry(Part.LineSegment(App.Vector(3.2, 6.2, 0), App.Vector(0, 6.2, 0)), True)  # axis
sketch6.addConstraint(Sketcher.Constraint("Horizontal", 0))
sketch6.addConstraint(Sketcher.Constraint("Vertical", 1))
sketch6.addConstraint(Sketcher.Constraint("Horizontal", 2))
sketch6.addConstraint(Sketcher.Constraint("Vertical", 4))
sketch6.addConstraint(Sketcher.Constraint("Horizontal", 5))
sketch6.addConstraint(Sketcher.Constraint("Coincident", 5, 1, 0, 2))
sketch6.addConstraint(Sketcher.Constraint("PointOnObject", 3, 2, -2))
sketch6.addConstraint(Sketcher.Constraint("PointOnObject", 5, 2, -2))
sketch6.addConstraint(Sketcher.Constraint("Angle", 3, Q("-135 deg")))
sketch6.addConstraint(Sketcher.Constraint("DistanceY", 4, 1, 4, 2, 4.7))
sketch6.addConstraint(Sketcher.Constraint("DistanceY", 1, 2, 1, 1, 2.25))
sketch6.addConstraint(Sketcher.Constraint("DistanceX", 0, 1, 0, 2, 3.175))
sketch6.addConstraint(Sketcher.Constraint("DistanceY", -1, 1, 0, 2, 6.161058))
groove3 = doc.addObject("PartDesign::Groove", "Groove002")
body.addObject(groove3)
groove3.Profile = sketch6
groove3.ReferenceAxis = (sketch6, ["Axis0"])
groove3.Angle = 360

# Sketch on YZ plane
sketch7 = doc.addObject("Sketcher::SketchObject", "Sketch006")
body.addObject(sketch7)
sketch7.AttachmentSupport = (doc.YZ_Plane, [""])
sketch7.MapMode = "FlatFace"
sketch7.AttachmentOffset = App.Placement(App.Vector(0, 0, -58.778184), App.Rotation())
add_polygon(sketch7, [(0, -69.4), (3.2, -69.4), (3.2, -71.7), (2.5, -71.7), (0, -74.1)])  # lines 0-4
sketch7.addGeometry(Part.LineSegment(App.Vector(3.2, -69.4, 0), App.Vector(0, -69.4, 0)), True)  # axis
sketch7.addConstraint(Sketcher.Constraint("Horizontal", 0))
sketch7.addConstraint(Sketcher.Constraint("Vertical", 1))
sketch7.addConstraint(Sketcher.Constraint("Horizontal", 2))
sketch7.addConstraint(Sketcher.Constraint("Vertical", 4))
sketch7.addConstraint(Sketcher.Constraint("Horizontal", 5))
sketch7.addConstraint(Sketcher.Constraint("Coincident", 5, 1, 0, 2))
sketch7.addConstraint(Sketcher.Constraint("PointOnObject", 3, 2, -2))
sketch7.addConstraint(Sketcher.Constraint("PointOnObject", 5, 2, -2))
sketch7.addConstraint(Sketcher.Constraint("Angle", 3, Q("-135 deg")))
sketch7.addConstraint(Sketcher.Constraint("DistanceY", 4, 1, 4, 2, 4.7))
sketch7.addConstraint(Sketcher.Constraint("DistanceY", 1, 2, 1, 1, 2.25))
sketch7.addConstraint(Sketcher.Constraint("DistanceX", 0, 1, 0, 2, 3.175))
sketch7.addConstraint(Sketcher.Constraint("DistanceY", 0, 2, -1, 1, 69.419471))
groove4 = doc.addObject("PartDesign::Groove", "Groove003")
body.addObject(groove4)
groove4.Profile = sketch7
groove4.ReferenceAxis = (sketch7, ["Axis0"])
groove4.Angle = 360

# Sketch on XZ plane
sketch8 = doc.addObject("Sketcher::SketchObject", "Sketch007")
body.addObject(sketch8)
sketch8.AttachmentSupport = (doc.XZ_Plane, [""])
sketch8.MapMode = "FlatFace"
sketch8.AttachmentOffset = App.Placement(App.Vector(0, 0, -3.175), App.Rotation())
sketch8.addGeometry(Part.ArcOfCircle(Part.Circle(App.Vector(0, 100, 0), App.Vector(0, 0, 1), 69), math.radians(-3), math.radians(39)), False)
sketch8.addGeometry(Part.ArcOfCircle(Part.Circle(App.Vector(64, 96, 0), App.Vector(0, 0, 1), 5), math.radians(177), math.radians(357)), False)
sketch8.addGeometry(Part.ArcOfCircle(Part.Circle(App.Vector(0, 100, 0), App.Vector(0, 0, 1), 59), math.radians(-3), math.radians(39)), False)
sketch8.addGeometry(Part.ArcOfCircle(Part.Circle(App.Vector(50, 140, 0), App.Vector(0, 0, 1), 5), math.radians(39), math.radians(219)), False)
sketch8.addGeometry(Part.ArcOfCircle(Part.Circle(App.Vector(0, 100, 0), App.Vector(0, 0, 1), 76), math.radians(10.67), math.radians(29.59)), False)
sketch8.addGeometry(Part.ArcOfCircle(Part.Circle(App.Vector(70, 140, 0), App.Vector(0, 0, 1), 5), math.radians(30), math.radians(210)), False)
sketch8.addGeometry(Part.ArcOfCircle(Part.Circle(App.Vector(0, 100, 0), App.Vector(0, 0, 1), 86), math.radians(10.67), math.radians(29.59)), False)
sketch8.addGeometry(Part.ArcOfCircle(Part.Circle(App.Vector(80, 115, 0), App.Vector(0, 0, 1), 5), math.radians(-169), math.radians(11)), False)
sketch8.addConstraint(Sketcher.Constraint("Tangent", 0, 1, 1, 2))
sketch8.addConstraint(Sketcher.Constraint("Tangent", 1, 1, 2, 1))
sketch8.addConstraint(Sketcher.Constraint("Tangent", 2, 2, 3, 2))
sketch8.addConstraint(Sketcher.Constraint("Tangent", 3, 1, 0, 2))
sketch8.addConstraint(Sketcher.Constraint("Tangent", 4, 2, 5, 2))
sketch8.addConstraint(Sketcher.Constraint("Tangent", 5, 1, 6, 2))
sketch8.addConstraint(Sketcher.Constraint("Tangent", 6, 1, 7, 2))
sketch8.addConstraint(Sketcher.Constraint("Tangent", 7, 1, 4, 1))
sketch8.addConstraint(Sketcher.Constraint("Coincident", 2, 3, 0, 3))
sketch8.addConstraint(Sketcher.Constraint("Coincident", 4, 3, 0, 3))
sketch8.addConstraint(Sketcher.Constraint("Coincident", 6, 3, 0, 3))
sketch8.addConstraint(Sketcher.Constraint("Equal", 3, 5))
sketch8.addConstraint(Sketcher.Constraint("PointOnObject", 0, 3, -2))
sketch8.addConstraint(Sketcher.Constraint("Horizontal", 3, 3, 5, 3))
sketch8.addConstraint(Sketcher.Constraint("Radius", 0, 69.0))
sketch8.addConstraint(Sketcher.Constraint("Radius", 1, 5.0))
sketch8.addConstraint(Sketcher.Constraint("Radius", 4, 76.0))
sketch8.addConstraint(Sketcher.Constraint("DistanceY", -1, 1, 0, 3, 100.0))
sketch8.addConstraint(Sketcher.Constraint("DistanceY", -1, 1, 3, 3, 140.0))
sketch8.addConstraint(Sketcher.Constraint("DistanceY", -1, 1, 7, 3, 115.0))
sketch8.addConstraint(Sketcher.Constraint("DistanceX", -1, 1, 1, 1, 58.900301))
pocket2 = doc.addObject("PartDesign::Pocket", "Pocket001")
body.addObject(pocket2)
pocket2.Profile = sketch8
pocket2.Type = "ThroughAll"
pocket2.Reversed = True
doc.recompute()

mirrored3 = doc.addObject("PartDesign::Mirrored", "Mirrored002")
body.addObject(mirrored3)
mirrored3.Originals = [pocket2]
mirrored3.MirrorPlane = (doc.YZ_Plane, [""])
body.Tip = mirrored3

doc.recompute()
